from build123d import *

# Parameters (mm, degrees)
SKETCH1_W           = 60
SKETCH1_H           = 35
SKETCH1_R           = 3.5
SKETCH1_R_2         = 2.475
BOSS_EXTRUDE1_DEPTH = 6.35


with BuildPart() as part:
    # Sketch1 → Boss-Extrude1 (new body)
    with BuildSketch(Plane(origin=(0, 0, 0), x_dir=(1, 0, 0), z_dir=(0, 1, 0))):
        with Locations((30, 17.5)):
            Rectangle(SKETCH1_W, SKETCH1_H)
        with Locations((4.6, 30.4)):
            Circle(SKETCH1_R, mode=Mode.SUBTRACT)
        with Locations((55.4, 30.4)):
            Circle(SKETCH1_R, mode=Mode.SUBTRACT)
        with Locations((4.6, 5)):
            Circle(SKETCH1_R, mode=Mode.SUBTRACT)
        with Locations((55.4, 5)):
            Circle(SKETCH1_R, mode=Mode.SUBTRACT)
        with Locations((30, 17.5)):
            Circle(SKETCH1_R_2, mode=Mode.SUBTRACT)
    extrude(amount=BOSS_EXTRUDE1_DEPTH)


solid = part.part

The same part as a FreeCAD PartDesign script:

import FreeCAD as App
import Part
import Sketcher
Q = App.Units.Quantity

doc = App.newDocument("Part")
params = doc.addObject("Spreadsheet::Sheet", "Params")
for row, (alias, value) in enumerate([
    ("sketch1_diameter", "7 mm"),
    ("sketch1_diameter2", "4.95 mm"),
    ("sketch1_width", "60 mm"),
    ("sketch1_height", "35 mm"),
    ("pad1_length", "6.35 mm"),
], start=1):
    params.set(f"A{row}", alias)
    params.set(f"B{row}", "=" + value)
    params.setAlias(f"B{row}", alias)

body = doc.addObject("PartDesign::Body", "Body")

# Sketch on XZ plane
sketch1 = doc.addObject("Sketcher::SketchObject", "Sketch")
body.addObject(sketch1)
sketch1.AttachmentSupport = (doc.XZ_Plane, [""])
sketch1.MapMode = "FlatFace"
sketch1.addGeometry([
    Part.LineSegment(App.Vector(0, -35, 0), App.Vector(0, 0, 0)),  # 0
    Part.LineSegment(App.Vector(0, 0, 0), App.Vector(60, 0, 0)),  # 1
    Part.LineSegment(App.Vector(60, 0, 0), App.Vector(60, -35, 0)),  # 2
    Part.LineSegment(App.Vector(60, -35, 0), App.Vector(0, -35, 0)),  # 3
    Part.Circle(App.Vector(4.6, -5, 0), App.Vector(0, 0, 1), 3.5),  # 4
    Part.Circle(App.Vector(55.4, -5, 0), App.Vector(0, 0, 1), 3.5),  # 5
    Part.Circle(App.Vector(30, -17.5, 0), App.Vector(0, 0, 1), 2.5),  # 6
    Part.Circle(App.Vector(4.6, -30.4, 0), App.Vector(0, 0, 1), 3.5),  # 7
    Part.Circle(App.Vector(55.4, -30.4, 0), App.Vector(0, 0, 1), 3.5),  # 8
], False)
sketch1.addConstraint([
    Sketcher.Constraint("Coincident", 0, 2, 1, 1),
    Sketcher.Constraint("Coincident", 1, 2, 2, 1),
    Sketcher.Constraint("Coincident", 2, 2, 3, 1),
    Sketcher.Constraint("Coincident", 3, 2, 0, 1),
    Sketcher.Constraint("Vertical", 0),
    Sketcher.Constraint("Horizontal", 1),
    Sketcher.Constraint("Vertical", 2),
    Sketcher.Constraint("Horizontal", 3),
    Sketcher.Constraint("Coincident", 0, 2, -1, 1),
    Sketcher.Constraint("Equal", 4, 5),
    Sketcher.Constraint("Equal", 5, 7),
    Sketcher.Constraint("Equal", 7, 8),
    Sketcher.Constraint("Horizontal", 4, 3, 5, 3),
    Sketcher.Constraint("Horizontal", 7, 3, 8, 3),
    Sketcher.Constraint("Vertical", 4, 3, 7, 3),
    Sketcher.Constraint("Vertical", 5, 3, 8, 3),
    Sketcher.Constraint("Diameter", 4, Q("7 mm")),
    Sketcher.Constraint("Diameter", 6, Q("4.95 mm")),
    Sketcher.Constraint("DistanceX", 1, 1, 1, 2, Q("60 mm")),
    Sketcher.Constraint("DistanceY", 0, 1, 0, 2, Q("35 mm")),
    Sketcher.Constraint("DistanceY", 4, 3, -1, 1, Q("5 mm")),
    Sketcher.Constraint("DistanceX", -1, 1, 6, 3, Q("30 mm")),
    Sketcher.Constraint("DistanceX", -1, 1, 4, 3, Q("4.6 mm")),
    Sketcher.Constraint("DistanceX", -1, 1, 5, 3, Q("55.4 mm")),
    Sketcher.Constraint("DistanceY", 6, 3, -1, 1, Q("17.5 mm")),
    Sketcher.Constraint("DistanceY", 7, 3, -1, 1, Q("30.4 mm")),
])
sketch1.setExpression("Constraints[16]", "Params.sketch1_diameter")
sketch1.setExpression("Constraints[17]", "Params.sketch1_diameter2")
sketch1.setExpression("Constraints[18]", "Params.sketch1_width")
sketch1.setExpression("Constraints[19]", "Params.sketch1_height")
pad1 = doc.addObject("PartDesign::Pad", "Pad")
body.addObject(pad1)
pad1.Profile = sketch1
pad1.setExpression("Length", "Params.pad1_length")
pad1.Reversed = True

doc.recompute()
